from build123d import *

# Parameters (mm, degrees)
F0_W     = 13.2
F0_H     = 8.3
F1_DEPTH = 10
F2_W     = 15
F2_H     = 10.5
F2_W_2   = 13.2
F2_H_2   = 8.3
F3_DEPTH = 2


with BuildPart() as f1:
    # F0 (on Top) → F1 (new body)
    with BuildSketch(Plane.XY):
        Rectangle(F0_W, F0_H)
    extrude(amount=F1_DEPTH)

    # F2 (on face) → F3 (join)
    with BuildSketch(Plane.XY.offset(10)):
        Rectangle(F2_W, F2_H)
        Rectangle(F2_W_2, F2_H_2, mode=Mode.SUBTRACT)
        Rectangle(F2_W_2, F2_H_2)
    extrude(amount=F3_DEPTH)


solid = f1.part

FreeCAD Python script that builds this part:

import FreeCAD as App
import Part
import Sketcher
Q = App.Units.Quantity


def add_polygon(sketch, points):
    """Adds a closed chain of lines whose ends are joined by coincident constraints."""
    first, n = sketch.GeometryCount, len(points)
    for a, b in zip(points, points[1:] + points[:1]):
        sketch.addGeometry(Part.LineSegment(App.Vector(*a, 0), App.Vector(*b, 0)), False)
    for i in range(n):
        sketch.addConstraint(Sketcher.Constraint("Coincident", first + i, 2, first + (i + 1) % n, 1))

doc = App.newDocument("Part")
body = doc.addObject("PartDesign::Body", "Body")

# Sketch on XY plane
sketch1 = doc.addObject("Sketcher::SketchObject", "Sketch")
body.addObject(sketch1)
sketch1.AttachmentSupport = (doc.XY_Plane, [""])
sketch1.MapMode = "FlatFace"
add_polygon(sketch1, [(-7, 4), (-7, -4), (7, -4), (7, 4)])  # lines 0-3
sketch1.addConstraint(Sketcher.Constraint("Vertical", 0))
sketch1.addConstraint(Sketcher.Constraint("Horizontal", 1))
sketch1.addConstraint(Sketcher.Constraint("Vertical", 2))
sketch1.addConstraint(Sketcher.Constraint("Horizontal", 3))
sketch1.addConstraint(Sketcher.Constraint("Symmetric", 0, 2, 2, 2, -1, 1))
sketch1.addConstraint(Sketcher.Constraint("DistanceX", 1, 1, 1, 2, Q("13.2 mm")))
sketch1.addConstraint(Sketcher.Constraint("DistanceY", 0, 2, 0, 1, Q("8.3 mm")))
pad1 = doc.addObject("PartDesign::Pad", "Pad")
body.addObject(pad1)
pad1.Profile = sketch1
pad1.Length = 10

# Sketch on XY plane
sketch2 = doc.addObject("Sketcher::SketchObject", "Sketch001")
body.addObject(sketch2)
sketch2.AttachmentSupport = (doc.XY_Plane, [""])
sketch2.MapMode = "FlatFace"
sketch2.AttachmentOffset = App.Placement(App.Vector(0, 0, 10), App.Rotation())
add_polygon(sketch2, [(-8, 5), (-8, -5), (8, -5), (8, 5)])  # lines 0-3
sketch2.addConstraint(Sketcher.Constraint("Vertical", 0))
sketch2.addConstraint(Sketcher.Constraint("Horizontal", 1))
sketch2.addConstraint(Sketcher.Constraint("Vertical", 2))
sketch2.addConstraint(Sketcher.Constraint("Horizontal", 3))
sketch2.addConstraint(Sketcher.Constraint("Symmetric", 0, 2, 2, 2, -1, 1))
sketch2.addConstraint(Sketcher.Constraint("DistanceX", 1, 1, 1, 2, Q("15 mm")))
sketch2.addConstraint(Sketcher.Constraint("DistanceY", 0, 2, 0, 1, Q("10.5 mm")))
pad2 = doc.addObject("PartDesign::Pad", "Pad001")
body.addObject(pad2)
pad2.Profile = sketch2
pad2.Length = 2

doc.recompute()
